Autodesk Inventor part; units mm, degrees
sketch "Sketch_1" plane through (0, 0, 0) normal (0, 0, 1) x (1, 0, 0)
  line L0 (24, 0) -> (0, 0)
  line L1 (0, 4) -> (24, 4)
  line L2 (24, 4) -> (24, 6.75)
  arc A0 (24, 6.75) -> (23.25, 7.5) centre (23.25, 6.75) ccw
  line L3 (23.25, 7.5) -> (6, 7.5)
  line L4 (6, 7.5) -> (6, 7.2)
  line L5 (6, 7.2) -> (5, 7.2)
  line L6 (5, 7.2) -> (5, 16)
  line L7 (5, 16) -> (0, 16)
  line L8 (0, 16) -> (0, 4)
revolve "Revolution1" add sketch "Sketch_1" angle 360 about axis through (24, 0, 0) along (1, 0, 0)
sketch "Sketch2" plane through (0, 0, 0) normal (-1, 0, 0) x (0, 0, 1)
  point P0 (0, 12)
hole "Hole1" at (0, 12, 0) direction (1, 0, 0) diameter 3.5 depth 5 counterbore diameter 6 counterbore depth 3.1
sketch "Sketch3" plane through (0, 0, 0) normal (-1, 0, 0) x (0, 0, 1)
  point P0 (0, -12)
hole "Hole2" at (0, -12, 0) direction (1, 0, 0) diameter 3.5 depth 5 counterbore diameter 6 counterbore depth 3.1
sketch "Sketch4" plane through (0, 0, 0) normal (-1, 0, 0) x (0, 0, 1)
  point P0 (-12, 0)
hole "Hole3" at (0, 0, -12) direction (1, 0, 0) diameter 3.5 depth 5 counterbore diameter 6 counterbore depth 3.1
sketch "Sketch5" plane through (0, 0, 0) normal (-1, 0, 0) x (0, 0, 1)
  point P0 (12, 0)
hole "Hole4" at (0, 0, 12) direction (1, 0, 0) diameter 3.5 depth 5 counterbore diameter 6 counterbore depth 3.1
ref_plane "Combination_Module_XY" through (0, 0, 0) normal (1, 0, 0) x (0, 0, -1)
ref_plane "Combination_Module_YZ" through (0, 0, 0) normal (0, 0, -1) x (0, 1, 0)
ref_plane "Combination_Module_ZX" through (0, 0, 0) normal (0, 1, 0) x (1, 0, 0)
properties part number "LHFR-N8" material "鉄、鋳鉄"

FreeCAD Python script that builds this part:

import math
import FreeCAD as App
import Part
import Sketcher

V = App.Vector

doc = App.newDocument("Part")
body = doc.addObject("PartDesign::Body", "Body")

sketch1 = body.newObject("Sketcher::SketchObject", "Sketch")
sketch1.AttachmentSupport = (doc.getObject("XY_Plane"), [""])
sketch1.MapMode = "FlatFace"
sketch1.addGeometry([
    Part.LineSegment(V(0, 16, 0), V(0, 4, 0)),
    Part.LineSegment(V(0, 4, 0), V(24, 4, 0)),
    Part.LineSegment(V(24, 4, 0), V(24, 6.75, 0)),
    Part.ArcOfCircle(Part.Circle(V(23.25, 6.75, 0), V(0, 0, 1), 0.75), math.radians(0), math.radians(90)),
    Part.LineSegment(V(23.25, 7.5, 0), V(6, 7.5, 0)),
    Part.LineSegment(V(6, 7.5, 0), V(6, 7.2, 0)),
    Part.LineSegment(V(6, 7.2, 0), V(5, 7.2, 0)),
    Part.LineSegment(V(5, 7.2, 0), V(5, 16, 0)),
    Part.LineSegment(V(5, 16, 0), V(0, 16, 0)),
], False)
sketch1.addConstraint([
    Sketcher.Constraint("Coincident", 0, 2, 1, 1),
    Sketcher.Constraint("Coincident", 1, 2, 2, 1),
    Sketcher.Constraint("Tangent", 2, 2, 3, 1),
    Sketcher.Constraint("Tangent", 3, 2, 4, 1),
    Sketcher.Constraint("Coincident", 4, 2, 5, 1),
    Sketcher.Constraint("Coincident", 5, 2, 6, 1),
    Sketcher.Constraint("Coincident", 6, 2, 7, 1),
    Sketcher.Constraint("Coincident", 7, 2, 8, 1),
    Sketcher.Constraint("Coincident", 8, 2, 0, 1),
    Sketcher.Constraint("Vertical", 0),
    Sketcher.Constraint("Horizontal", 1),
    Sketcher.Constraint("Vertical", 2),
    Sketcher.Constraint("Horizontal", 4),
    Sketcher.Constraint("Vertical", 5),
    Sketcher.Constraint("Horizontal", 6),
    Sketcher.Constraint("Vertical", 7),
    Sketcher.Constraint("Horizontal", 8),
    Sketcher.Constraint("PointOnObject", 0, 2, -2),
    Sketcher.Constraint("DistanceX", 1, 1, 1, 2, 24.0),
    Sketcher.Constraint("DistanceX", 6, 2, 6, 1, 1.0),
    Sketcher.Constraint("DistanceX", 8, 2, 8, 1, 5.0),
    Sketcher.Constraint("DistanceY", 0, 2, 0, 1, 12.0),
    Sketcher.Constraint("Radius", 3, 0.75),
    Sketcher.Constraint("DistanceY", 5, 2, 5, 1, 0.3),
    Sketcher.Constraint("DistanceY", 7, 1, 7, 2, 8.8),
    Sketcher.Constraint("DistanceY", -1, 1, 0, 2, 4.0),
])
revolution = body.newObject("PartDesign::Revolution", "Revolution")
revolution.Profile = sketch1
revolution.ReferenceAxis = (sketch1, ["H_Axis"])
revolution.Angle = 360

sketch2 = body.newObject("Sketcher::SketchObject", "Sketch001")
sketch2.AttachmentSupport = (doc.getObject("YZ_Plane"), [""])
sketch2.MapMode = "FlatFace"
sketch2.addGeometry(Part.Circle(V(12, 0, 0), V(0, 0, 1), 1.8), False)
sketch2.addConstraint([
    Sketcher.Constraint("PointOnObject", 0, 3, -1),
    Sketcher.Constraint("Diameter", 0, 3.5),
    Sketcher.Constraint("DistanceX", -1, 1, 0, 3, 12.0),
])
doc.recompute()
hole = body.newObject("PartDesign::Hole", "Hole")
hole.Profile = sketch2
hole.ThreadType = "None"
hole.Diameter = 3.5
hole.DepthType = "Dimension"
hole.Depth = 5
hole.DrillPoint = "Flat"
hole.HoleCutType = "Counterbore"
hole.HoleCutDiameter = 6
hole.HoleCutDepth = 3.1
hole.Reversed = True

sketch3 = body.newObject("Sketcher::SketchObject", "Sketch002")
sketch3.AttachmentSupport = (doc.getObject("YZ_Plane"), [""])
sketch3.MapMode = "FlatFace"
sketch3.addGeometry(Part.Circle(V(-12, 0, 0), V(0, 0, 1), 1.8), False)
sketch3.addConstraint([
    Sketcher.Constraint("PointOnObject", 0, 3, -1),
    Sketcher.Constraint("Diameter", 0, 3.5),
    Sketcher.Constraint("DistanceX", 0, 3, -1, 1, 12.0),
])
doc.recompute()
hole2 = body.newObject("PartDesign::Hole", "Hole001")
hole2.Profile = sketch3
hole2.ThreadType = "None"
hole2.Diameter = 3.5
hole2.DepthType = "Dimension"
hole2.Depth = 5
hole2.DrillPoint = "Flat"
hole2.HoleCutType = "Counterbore"
hole2.HoleCutDiameter = 6
hole2.HoleCutDepth = 3.1
hole2.Reversed = True

sketch4 = body.newObject("Sketcher::SketchObject", "Sketch003")
sketch4.AttachmentSupport = (doc.getObject("YZ_Plane"), [""])
sketch4.MapMode = "FlatFace"
sketch4.addGeometry(Part.Circle(V(0, -12, 0), V(0, 0, 1), 1.8), False)
sketch4.addConstraint([
    Sketcher.Constraint("PointOnObject", 0, 3, -2),
    Sketcher.Constraint("Diameter", 0, 3.5),
    Sketcher.Constraint("DistanceY", 0, 3, -1, 1, 12.0),
])
doc.recompute()
hole3 = body.newObject("PartDesign::Hole", "Hole002")
hole3.Profile = sketch4
hole3.ThreadType = "None"
hole3.Diameter = 3.5
hole3.DepthType = "Dimension"
hole3.Depth = 5
hole3.DrillPoint = "Flat"
hole3.HoleCutType = "Counterbore"
hole3.HoleCutDiameter = 6
hole3.HoleCutDepth = 3.1
hole3.Reversed = True

sketch5 = body.newObject("Sketcher::SketchObject", "Sketch004")
sketch5.AttachmentSupport = (doc.getObject("YZ_Plane"), [""])
sketch5.MapMode = "FlatFace"
sketch5.addGeometry(Part.Circle(V(0, 12, 0), V(0, 0, 1), 1.8), False)
sketch5.addConstraint([
    Sketcher.Constraint("PointOnObject", 0, 3, -2),
    Sketcher.Constraint("Diameter", 0, 3.5),
    Sketcher.Constraint("DistanceY", -1, 1, 0, 3, 12.0),
])
doc.recompute()
hole4 = body.newObject("PartDesign::Hole", "Hole003")
hole4.Profile = sketch5
hole4.ThreadType = "None"
hole4.Diameter = 3.5
hole4.DepthType = "Dimension"
hole4.Depth = 5
hole4.DrillPoint = "Flat"
hole4.HoleCutType = "Counterbore"
hole4.HoleCutDiameter = 6
hole4.HoleCutDepth = 3.1
hole4.Reversed = True

doc.recompute()
